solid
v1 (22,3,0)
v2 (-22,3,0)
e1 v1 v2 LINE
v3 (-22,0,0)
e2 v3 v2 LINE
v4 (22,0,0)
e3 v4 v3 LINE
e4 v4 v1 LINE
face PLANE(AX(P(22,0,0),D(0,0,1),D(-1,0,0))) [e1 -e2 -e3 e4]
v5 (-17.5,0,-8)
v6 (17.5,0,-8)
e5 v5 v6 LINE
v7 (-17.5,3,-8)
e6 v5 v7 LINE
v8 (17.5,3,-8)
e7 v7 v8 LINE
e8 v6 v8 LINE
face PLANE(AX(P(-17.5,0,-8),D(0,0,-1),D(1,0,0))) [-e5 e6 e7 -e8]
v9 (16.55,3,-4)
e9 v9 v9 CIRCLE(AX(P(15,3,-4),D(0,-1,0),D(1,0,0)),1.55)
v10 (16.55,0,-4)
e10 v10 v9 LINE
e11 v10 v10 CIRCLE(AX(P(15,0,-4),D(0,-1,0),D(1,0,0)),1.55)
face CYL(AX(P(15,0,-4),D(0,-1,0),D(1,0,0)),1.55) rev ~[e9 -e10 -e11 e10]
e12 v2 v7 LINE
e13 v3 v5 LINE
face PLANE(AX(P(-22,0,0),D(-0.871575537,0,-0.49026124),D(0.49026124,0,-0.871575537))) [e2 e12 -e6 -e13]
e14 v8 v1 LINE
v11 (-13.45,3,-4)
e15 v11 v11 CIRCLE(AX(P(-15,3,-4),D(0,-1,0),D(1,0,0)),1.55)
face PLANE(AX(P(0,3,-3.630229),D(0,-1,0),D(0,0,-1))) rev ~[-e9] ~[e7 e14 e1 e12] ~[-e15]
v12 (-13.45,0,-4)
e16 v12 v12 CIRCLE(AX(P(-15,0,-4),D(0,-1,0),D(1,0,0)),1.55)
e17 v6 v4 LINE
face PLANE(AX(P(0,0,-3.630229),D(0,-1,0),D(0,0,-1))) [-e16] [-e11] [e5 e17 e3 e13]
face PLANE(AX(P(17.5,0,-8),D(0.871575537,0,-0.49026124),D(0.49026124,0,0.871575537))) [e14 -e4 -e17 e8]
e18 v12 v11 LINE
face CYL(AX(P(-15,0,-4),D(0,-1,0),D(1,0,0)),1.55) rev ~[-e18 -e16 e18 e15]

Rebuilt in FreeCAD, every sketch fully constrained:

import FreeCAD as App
import Part
import Sketcher

V = App.Vector


def add_polygon(sketch, points):
    """Adds a closed chain of lines whose ends are joined by coincident constraints."""
    first, n = sketch.GeometryCount, len(points)
    for a, b in zip(points, points[1:] + points[:1]):
        sketch.addGeometry(Part.LineSegment(App.Vector(*a, 0), App.Vector(*b, 0)), False)
    for i in range(n):
        sketch.addConstraint(Sketcher.Constraint("Coincident", first + i, 2, first + (i + 1) % n, 1))

doc = App.newDocument("Part")
body = doc.addObject("PartDesign::Body", "Body")

# Sketch on XZ plane
sketch1 = body.newObject("Sketcher::SketchObject", "Sketch")
sketch1.AttachmentSupport = (doc.getObject("XZ_Plane"), [""])
sketch1.MapMode = "FlatFace"
add_polygon(sketch1, [(22, 0), (-22, 0), (-17.5, -8), (17.5, -8)])  # lines 0-3
sketch1.addConstraint(Sketcher.Constraint("Horizontal", 0))
sketch1.addConstraint(Sketcher.Constraint("Horizontal", 2))
sketch1.addConstraint(Sketcher.Constraint("Symmetric", 0, 2, 3, 2, -1, 1))
sketch1.addConstraint(Sketcher.Constraint("Equal", 1, 3))
sketch1.addConstraint(Sketcher.Constraint("DistanceX", 0, 2, -1, 1, 22.0))
sketch1.addConstraint(Sketcher.Constraint("DistanceX", 1, 2, -1, 1, 17.5))
sketch1.addConstraint(Sketcher.Constraint("DistanceY", 1, 2, -1, 1, 8.0))
pad1 = body.newObject("PartDesign::Pad", "Pad")
pad1.Profile = sketch1
pad1.Length = 3
pad1.Reversed = True

# Sketch on XZ plane
sketch2 = body.newObject("Sketcher::SketchObject", "Sketch001")
sketch2.AttachmentSupport = (doc.getObject("XZ_Plane"), [""])
sketch2.MapMode = "FlatFace"
sketch2.addGeometry(Part.Circle(V(-15, -4, 0), V(0, 0, 1), 1.55), False)
sketch2.addGeometry(Part.Circle(V(15, -4, 0), V(0, 0, 1), 1.55), False)
sketch2.addConstraint(Sketcher.Constraint("Equal", 0, 1))
sketch2.addConstraint(Sketcher.Constraint("Symmetric", 0, 3, 1, 3, -2))
sketch2.addConstraint(Sketcher.Constraint("DistanceX", 0, 3, -1, 1, 15.0))
sketch2.addConstraint(Sketcher.Constraint("Diameter", 0, 3.1))
sketch2.addConstraint(Sketcher.Constraint("DistanceY", 0, 3, -1, 1, 4.0))
pocket1 = body.newObject("PartDesign::Pocket", "Pocket")
pocket1.Profile = sketch2
pocket1.Length = 6.075

doc.recompute()
